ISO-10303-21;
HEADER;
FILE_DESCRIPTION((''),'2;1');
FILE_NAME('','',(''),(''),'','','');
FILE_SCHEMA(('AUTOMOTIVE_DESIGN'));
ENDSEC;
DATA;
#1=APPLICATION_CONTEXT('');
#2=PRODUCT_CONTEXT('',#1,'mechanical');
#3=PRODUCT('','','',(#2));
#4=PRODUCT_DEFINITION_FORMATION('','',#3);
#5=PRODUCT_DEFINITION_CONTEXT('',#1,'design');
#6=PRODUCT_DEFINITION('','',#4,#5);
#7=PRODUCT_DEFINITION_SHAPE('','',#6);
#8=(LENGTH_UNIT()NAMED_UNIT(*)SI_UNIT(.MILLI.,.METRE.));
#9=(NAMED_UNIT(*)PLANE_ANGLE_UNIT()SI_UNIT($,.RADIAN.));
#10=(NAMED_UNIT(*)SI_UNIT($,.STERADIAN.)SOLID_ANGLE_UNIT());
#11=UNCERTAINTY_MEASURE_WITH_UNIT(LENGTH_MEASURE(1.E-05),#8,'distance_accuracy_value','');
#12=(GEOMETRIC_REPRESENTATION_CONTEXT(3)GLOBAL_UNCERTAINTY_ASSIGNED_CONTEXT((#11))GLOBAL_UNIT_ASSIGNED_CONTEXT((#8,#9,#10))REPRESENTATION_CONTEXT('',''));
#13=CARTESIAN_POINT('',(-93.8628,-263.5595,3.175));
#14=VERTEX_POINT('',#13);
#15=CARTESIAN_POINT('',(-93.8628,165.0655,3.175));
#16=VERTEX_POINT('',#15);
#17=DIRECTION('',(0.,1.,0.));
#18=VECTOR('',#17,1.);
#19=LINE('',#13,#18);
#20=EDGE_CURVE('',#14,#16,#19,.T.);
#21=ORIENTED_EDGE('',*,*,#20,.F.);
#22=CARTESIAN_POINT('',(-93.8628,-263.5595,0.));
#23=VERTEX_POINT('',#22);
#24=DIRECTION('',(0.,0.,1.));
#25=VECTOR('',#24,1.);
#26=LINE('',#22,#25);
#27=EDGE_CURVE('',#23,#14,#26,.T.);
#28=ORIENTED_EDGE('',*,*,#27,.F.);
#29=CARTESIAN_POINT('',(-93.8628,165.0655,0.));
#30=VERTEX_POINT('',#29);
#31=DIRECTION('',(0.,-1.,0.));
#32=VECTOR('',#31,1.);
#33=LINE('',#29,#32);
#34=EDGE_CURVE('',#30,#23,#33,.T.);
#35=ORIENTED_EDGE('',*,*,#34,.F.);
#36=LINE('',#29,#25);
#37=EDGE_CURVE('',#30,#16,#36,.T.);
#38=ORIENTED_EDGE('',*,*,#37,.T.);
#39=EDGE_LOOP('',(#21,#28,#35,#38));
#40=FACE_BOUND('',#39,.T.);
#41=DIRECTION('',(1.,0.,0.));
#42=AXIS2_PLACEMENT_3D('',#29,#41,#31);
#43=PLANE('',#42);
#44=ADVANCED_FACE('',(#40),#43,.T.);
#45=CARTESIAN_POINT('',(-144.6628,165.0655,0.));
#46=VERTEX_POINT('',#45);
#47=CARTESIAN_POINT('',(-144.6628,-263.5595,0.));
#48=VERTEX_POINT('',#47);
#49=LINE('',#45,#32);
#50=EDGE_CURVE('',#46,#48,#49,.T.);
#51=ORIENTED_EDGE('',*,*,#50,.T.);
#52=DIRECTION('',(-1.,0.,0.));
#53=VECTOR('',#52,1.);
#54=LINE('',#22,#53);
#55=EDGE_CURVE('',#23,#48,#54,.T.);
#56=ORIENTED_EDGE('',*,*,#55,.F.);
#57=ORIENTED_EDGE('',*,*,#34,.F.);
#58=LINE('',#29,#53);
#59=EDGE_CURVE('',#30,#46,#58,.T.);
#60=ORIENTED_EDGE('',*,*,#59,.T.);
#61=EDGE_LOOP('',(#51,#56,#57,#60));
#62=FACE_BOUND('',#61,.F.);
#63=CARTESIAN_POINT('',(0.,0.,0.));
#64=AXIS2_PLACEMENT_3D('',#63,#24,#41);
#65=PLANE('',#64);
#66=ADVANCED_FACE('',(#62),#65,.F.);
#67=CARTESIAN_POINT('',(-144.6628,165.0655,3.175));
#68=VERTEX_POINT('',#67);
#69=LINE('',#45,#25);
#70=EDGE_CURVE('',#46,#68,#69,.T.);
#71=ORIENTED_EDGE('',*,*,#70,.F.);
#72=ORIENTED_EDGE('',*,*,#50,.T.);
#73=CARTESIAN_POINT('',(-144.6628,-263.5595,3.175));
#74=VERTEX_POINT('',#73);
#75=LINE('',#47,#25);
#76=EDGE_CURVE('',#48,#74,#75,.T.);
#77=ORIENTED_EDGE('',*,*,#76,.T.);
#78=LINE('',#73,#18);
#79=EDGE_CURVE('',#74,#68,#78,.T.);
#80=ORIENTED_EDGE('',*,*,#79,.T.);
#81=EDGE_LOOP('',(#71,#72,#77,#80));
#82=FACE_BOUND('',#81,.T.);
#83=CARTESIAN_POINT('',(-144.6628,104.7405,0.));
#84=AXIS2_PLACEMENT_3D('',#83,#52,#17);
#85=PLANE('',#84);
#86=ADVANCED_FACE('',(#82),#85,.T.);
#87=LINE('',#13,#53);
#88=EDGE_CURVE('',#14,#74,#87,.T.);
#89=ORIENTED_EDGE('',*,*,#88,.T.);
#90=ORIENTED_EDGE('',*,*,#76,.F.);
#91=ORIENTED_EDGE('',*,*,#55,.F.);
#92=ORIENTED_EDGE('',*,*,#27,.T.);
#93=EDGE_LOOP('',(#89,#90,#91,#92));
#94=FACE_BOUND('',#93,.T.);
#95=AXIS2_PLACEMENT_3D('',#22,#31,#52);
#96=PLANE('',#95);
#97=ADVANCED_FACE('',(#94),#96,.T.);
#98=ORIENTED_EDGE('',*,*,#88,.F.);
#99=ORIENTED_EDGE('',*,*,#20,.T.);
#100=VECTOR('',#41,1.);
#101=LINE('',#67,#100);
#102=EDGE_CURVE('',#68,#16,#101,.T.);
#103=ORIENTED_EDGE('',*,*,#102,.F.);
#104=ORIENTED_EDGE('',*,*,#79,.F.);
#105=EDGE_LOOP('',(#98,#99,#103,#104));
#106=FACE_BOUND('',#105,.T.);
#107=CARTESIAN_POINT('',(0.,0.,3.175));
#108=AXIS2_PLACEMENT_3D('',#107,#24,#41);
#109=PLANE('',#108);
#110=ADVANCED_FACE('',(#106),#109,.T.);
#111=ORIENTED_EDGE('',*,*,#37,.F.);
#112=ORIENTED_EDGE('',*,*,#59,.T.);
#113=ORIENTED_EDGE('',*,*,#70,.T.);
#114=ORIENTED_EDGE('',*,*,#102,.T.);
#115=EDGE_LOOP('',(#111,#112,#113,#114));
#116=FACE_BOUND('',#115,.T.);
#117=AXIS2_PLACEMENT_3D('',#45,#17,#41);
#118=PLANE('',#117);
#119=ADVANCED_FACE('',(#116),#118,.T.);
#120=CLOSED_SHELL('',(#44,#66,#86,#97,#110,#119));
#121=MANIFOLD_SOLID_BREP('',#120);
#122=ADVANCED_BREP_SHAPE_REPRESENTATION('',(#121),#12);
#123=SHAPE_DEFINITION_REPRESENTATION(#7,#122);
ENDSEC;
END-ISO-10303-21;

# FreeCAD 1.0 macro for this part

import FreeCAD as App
import Part
import Sketcher
from FreeCAD import Vector
Q = App.Units.Quantity

doc = App.newDocument("Part")
body = doc.addObject("PartDesign::Body", "Body")

sketch1 = doc.addObject("Sketcher::SketchObject", "Sketch")
body.addObject(sketch1)
sketch1.AttachmentSupport = (doc.XY_Plane, [""])
sketch1.MapMode = "FlatFace"
sketch1.addGeometry([
    Part.LineSegment(Vector(-145, 165, 0), Vector(-145, -264, 0)),
    Part.LineSegment(Vector(-145, -264, 0), Vector(-94, -264, 0)),
    Part.LineSegment(Vector(-94, -264, 0), Vector(-94, 165, 0)),
    Part.LineSegment(Vector(-94, 165, 0), Vector(-145, 165, 0)),
], False)
sketch1.addConstraint([
    Sketcher.Constraint("Coincident", 0, 2, 1, 1),
    Sketcher.Constraint("Coincident", 1, 2, 2, 1),
    Sketcher.Constraint("Coincident", 2, 2, 3, 1),
    Sketcher.Constraint("Coincident", 3, 2, 0, 1),
    Sketcher.Constraint("Vertical", 0),
    Sketcher.Constraint("Horizontal", 1),
    Sketcher.Constraint("Vertical", 2),
    Sketcher.Constraint("Horizontal", 3),
    Sketcher.Constraint("DistanceX", 1, 1, 1, 2, Q("2 in")),
    Sketcher.Constraint("DistanceY", 0, 2, 0, 1, Q("16.875 in")),
    Sketcher.Constraint("DistanceX", 0, 2, -1, 1, Q("144.6628 mm")),
    Sketcher.Constraint("DistanceY", 0, 2, -1, 1, Q("263.5595 mm")),
])
pad1 = doc.addObject("PartDesign::Pad", "Pad")
body.addObject(pad1)
pad1.Profile = sketch1
pad1.Length = Q("0.125 in")

doc.recompute()
